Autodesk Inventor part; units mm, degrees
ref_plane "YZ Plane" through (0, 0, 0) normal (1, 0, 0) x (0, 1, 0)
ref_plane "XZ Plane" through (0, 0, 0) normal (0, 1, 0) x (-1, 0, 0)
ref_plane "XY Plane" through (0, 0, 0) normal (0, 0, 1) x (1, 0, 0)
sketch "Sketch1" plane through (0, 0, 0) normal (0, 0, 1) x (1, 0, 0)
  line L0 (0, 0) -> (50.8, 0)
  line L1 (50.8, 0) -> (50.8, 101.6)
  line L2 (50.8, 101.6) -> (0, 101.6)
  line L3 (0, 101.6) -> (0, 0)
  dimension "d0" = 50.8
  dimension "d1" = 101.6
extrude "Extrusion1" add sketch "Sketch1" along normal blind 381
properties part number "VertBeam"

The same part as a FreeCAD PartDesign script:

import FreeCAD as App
import Part
import Sketcher
Q = App.Units.Quantity


def add_polygon(sketch, points):
    """Adds a closed chain of lines whose ends are joined by coincident constraints."""
    first, n = sketch.GeometryCount, len(points)
    for a, b in zip(points, points[1:] + points[:1]):
        sketch.addGeometry(Part.LineSegment(App.Vector(*a, 0), App.Vector(*b, 0)), False)
    for i in range(n):
        sketch.addConstraint(Sketcher.Constraint("Coincident", first + i, 2, first + (i + 1) % n, 1))

doc = App.newDocument("Part")
body = doc.addObject("PartDesign::Body", "Body")

# Sketch on XY plane
sketch1 = doc.addObject("Sketcher::SketchObject", "Sketch")
body.addObject(sketch1)
sketch1.AttachmentSupport = (doc.XY_Plane, [""])
sketch1.MapMode = "FlatFace"
add_polygon(sketch1, [(0, 102), (0, 0), (51, 0), (51, 102)])  # lines 0-3
sketch1.addConstraint([
    Sketcher.Constraint("Vertical", 0),
    Sketcher.Constraint("Horizontal", 1),
    Sketcher.Constraint("Vertical", 2),
    Sketcher.Constraint("Horizontal", 3),
    Sketcher.Constraint("Coincident", 0, 2, -1, 1),
    Sketcher.Constraint("DistanceX", 1, 1, 1, 2, Q("2 in")),
    Sketcher.Constraint("DistanceY", 0, 2, 0, 1, Q("4 in")),
])
pad1 = doc.addObject("PartDesign::Pad", "Pad")
body.addObject(pad1)
pad1.Profile = sketch1
pad1.Length = Q("15 in")

doc.recompute()
